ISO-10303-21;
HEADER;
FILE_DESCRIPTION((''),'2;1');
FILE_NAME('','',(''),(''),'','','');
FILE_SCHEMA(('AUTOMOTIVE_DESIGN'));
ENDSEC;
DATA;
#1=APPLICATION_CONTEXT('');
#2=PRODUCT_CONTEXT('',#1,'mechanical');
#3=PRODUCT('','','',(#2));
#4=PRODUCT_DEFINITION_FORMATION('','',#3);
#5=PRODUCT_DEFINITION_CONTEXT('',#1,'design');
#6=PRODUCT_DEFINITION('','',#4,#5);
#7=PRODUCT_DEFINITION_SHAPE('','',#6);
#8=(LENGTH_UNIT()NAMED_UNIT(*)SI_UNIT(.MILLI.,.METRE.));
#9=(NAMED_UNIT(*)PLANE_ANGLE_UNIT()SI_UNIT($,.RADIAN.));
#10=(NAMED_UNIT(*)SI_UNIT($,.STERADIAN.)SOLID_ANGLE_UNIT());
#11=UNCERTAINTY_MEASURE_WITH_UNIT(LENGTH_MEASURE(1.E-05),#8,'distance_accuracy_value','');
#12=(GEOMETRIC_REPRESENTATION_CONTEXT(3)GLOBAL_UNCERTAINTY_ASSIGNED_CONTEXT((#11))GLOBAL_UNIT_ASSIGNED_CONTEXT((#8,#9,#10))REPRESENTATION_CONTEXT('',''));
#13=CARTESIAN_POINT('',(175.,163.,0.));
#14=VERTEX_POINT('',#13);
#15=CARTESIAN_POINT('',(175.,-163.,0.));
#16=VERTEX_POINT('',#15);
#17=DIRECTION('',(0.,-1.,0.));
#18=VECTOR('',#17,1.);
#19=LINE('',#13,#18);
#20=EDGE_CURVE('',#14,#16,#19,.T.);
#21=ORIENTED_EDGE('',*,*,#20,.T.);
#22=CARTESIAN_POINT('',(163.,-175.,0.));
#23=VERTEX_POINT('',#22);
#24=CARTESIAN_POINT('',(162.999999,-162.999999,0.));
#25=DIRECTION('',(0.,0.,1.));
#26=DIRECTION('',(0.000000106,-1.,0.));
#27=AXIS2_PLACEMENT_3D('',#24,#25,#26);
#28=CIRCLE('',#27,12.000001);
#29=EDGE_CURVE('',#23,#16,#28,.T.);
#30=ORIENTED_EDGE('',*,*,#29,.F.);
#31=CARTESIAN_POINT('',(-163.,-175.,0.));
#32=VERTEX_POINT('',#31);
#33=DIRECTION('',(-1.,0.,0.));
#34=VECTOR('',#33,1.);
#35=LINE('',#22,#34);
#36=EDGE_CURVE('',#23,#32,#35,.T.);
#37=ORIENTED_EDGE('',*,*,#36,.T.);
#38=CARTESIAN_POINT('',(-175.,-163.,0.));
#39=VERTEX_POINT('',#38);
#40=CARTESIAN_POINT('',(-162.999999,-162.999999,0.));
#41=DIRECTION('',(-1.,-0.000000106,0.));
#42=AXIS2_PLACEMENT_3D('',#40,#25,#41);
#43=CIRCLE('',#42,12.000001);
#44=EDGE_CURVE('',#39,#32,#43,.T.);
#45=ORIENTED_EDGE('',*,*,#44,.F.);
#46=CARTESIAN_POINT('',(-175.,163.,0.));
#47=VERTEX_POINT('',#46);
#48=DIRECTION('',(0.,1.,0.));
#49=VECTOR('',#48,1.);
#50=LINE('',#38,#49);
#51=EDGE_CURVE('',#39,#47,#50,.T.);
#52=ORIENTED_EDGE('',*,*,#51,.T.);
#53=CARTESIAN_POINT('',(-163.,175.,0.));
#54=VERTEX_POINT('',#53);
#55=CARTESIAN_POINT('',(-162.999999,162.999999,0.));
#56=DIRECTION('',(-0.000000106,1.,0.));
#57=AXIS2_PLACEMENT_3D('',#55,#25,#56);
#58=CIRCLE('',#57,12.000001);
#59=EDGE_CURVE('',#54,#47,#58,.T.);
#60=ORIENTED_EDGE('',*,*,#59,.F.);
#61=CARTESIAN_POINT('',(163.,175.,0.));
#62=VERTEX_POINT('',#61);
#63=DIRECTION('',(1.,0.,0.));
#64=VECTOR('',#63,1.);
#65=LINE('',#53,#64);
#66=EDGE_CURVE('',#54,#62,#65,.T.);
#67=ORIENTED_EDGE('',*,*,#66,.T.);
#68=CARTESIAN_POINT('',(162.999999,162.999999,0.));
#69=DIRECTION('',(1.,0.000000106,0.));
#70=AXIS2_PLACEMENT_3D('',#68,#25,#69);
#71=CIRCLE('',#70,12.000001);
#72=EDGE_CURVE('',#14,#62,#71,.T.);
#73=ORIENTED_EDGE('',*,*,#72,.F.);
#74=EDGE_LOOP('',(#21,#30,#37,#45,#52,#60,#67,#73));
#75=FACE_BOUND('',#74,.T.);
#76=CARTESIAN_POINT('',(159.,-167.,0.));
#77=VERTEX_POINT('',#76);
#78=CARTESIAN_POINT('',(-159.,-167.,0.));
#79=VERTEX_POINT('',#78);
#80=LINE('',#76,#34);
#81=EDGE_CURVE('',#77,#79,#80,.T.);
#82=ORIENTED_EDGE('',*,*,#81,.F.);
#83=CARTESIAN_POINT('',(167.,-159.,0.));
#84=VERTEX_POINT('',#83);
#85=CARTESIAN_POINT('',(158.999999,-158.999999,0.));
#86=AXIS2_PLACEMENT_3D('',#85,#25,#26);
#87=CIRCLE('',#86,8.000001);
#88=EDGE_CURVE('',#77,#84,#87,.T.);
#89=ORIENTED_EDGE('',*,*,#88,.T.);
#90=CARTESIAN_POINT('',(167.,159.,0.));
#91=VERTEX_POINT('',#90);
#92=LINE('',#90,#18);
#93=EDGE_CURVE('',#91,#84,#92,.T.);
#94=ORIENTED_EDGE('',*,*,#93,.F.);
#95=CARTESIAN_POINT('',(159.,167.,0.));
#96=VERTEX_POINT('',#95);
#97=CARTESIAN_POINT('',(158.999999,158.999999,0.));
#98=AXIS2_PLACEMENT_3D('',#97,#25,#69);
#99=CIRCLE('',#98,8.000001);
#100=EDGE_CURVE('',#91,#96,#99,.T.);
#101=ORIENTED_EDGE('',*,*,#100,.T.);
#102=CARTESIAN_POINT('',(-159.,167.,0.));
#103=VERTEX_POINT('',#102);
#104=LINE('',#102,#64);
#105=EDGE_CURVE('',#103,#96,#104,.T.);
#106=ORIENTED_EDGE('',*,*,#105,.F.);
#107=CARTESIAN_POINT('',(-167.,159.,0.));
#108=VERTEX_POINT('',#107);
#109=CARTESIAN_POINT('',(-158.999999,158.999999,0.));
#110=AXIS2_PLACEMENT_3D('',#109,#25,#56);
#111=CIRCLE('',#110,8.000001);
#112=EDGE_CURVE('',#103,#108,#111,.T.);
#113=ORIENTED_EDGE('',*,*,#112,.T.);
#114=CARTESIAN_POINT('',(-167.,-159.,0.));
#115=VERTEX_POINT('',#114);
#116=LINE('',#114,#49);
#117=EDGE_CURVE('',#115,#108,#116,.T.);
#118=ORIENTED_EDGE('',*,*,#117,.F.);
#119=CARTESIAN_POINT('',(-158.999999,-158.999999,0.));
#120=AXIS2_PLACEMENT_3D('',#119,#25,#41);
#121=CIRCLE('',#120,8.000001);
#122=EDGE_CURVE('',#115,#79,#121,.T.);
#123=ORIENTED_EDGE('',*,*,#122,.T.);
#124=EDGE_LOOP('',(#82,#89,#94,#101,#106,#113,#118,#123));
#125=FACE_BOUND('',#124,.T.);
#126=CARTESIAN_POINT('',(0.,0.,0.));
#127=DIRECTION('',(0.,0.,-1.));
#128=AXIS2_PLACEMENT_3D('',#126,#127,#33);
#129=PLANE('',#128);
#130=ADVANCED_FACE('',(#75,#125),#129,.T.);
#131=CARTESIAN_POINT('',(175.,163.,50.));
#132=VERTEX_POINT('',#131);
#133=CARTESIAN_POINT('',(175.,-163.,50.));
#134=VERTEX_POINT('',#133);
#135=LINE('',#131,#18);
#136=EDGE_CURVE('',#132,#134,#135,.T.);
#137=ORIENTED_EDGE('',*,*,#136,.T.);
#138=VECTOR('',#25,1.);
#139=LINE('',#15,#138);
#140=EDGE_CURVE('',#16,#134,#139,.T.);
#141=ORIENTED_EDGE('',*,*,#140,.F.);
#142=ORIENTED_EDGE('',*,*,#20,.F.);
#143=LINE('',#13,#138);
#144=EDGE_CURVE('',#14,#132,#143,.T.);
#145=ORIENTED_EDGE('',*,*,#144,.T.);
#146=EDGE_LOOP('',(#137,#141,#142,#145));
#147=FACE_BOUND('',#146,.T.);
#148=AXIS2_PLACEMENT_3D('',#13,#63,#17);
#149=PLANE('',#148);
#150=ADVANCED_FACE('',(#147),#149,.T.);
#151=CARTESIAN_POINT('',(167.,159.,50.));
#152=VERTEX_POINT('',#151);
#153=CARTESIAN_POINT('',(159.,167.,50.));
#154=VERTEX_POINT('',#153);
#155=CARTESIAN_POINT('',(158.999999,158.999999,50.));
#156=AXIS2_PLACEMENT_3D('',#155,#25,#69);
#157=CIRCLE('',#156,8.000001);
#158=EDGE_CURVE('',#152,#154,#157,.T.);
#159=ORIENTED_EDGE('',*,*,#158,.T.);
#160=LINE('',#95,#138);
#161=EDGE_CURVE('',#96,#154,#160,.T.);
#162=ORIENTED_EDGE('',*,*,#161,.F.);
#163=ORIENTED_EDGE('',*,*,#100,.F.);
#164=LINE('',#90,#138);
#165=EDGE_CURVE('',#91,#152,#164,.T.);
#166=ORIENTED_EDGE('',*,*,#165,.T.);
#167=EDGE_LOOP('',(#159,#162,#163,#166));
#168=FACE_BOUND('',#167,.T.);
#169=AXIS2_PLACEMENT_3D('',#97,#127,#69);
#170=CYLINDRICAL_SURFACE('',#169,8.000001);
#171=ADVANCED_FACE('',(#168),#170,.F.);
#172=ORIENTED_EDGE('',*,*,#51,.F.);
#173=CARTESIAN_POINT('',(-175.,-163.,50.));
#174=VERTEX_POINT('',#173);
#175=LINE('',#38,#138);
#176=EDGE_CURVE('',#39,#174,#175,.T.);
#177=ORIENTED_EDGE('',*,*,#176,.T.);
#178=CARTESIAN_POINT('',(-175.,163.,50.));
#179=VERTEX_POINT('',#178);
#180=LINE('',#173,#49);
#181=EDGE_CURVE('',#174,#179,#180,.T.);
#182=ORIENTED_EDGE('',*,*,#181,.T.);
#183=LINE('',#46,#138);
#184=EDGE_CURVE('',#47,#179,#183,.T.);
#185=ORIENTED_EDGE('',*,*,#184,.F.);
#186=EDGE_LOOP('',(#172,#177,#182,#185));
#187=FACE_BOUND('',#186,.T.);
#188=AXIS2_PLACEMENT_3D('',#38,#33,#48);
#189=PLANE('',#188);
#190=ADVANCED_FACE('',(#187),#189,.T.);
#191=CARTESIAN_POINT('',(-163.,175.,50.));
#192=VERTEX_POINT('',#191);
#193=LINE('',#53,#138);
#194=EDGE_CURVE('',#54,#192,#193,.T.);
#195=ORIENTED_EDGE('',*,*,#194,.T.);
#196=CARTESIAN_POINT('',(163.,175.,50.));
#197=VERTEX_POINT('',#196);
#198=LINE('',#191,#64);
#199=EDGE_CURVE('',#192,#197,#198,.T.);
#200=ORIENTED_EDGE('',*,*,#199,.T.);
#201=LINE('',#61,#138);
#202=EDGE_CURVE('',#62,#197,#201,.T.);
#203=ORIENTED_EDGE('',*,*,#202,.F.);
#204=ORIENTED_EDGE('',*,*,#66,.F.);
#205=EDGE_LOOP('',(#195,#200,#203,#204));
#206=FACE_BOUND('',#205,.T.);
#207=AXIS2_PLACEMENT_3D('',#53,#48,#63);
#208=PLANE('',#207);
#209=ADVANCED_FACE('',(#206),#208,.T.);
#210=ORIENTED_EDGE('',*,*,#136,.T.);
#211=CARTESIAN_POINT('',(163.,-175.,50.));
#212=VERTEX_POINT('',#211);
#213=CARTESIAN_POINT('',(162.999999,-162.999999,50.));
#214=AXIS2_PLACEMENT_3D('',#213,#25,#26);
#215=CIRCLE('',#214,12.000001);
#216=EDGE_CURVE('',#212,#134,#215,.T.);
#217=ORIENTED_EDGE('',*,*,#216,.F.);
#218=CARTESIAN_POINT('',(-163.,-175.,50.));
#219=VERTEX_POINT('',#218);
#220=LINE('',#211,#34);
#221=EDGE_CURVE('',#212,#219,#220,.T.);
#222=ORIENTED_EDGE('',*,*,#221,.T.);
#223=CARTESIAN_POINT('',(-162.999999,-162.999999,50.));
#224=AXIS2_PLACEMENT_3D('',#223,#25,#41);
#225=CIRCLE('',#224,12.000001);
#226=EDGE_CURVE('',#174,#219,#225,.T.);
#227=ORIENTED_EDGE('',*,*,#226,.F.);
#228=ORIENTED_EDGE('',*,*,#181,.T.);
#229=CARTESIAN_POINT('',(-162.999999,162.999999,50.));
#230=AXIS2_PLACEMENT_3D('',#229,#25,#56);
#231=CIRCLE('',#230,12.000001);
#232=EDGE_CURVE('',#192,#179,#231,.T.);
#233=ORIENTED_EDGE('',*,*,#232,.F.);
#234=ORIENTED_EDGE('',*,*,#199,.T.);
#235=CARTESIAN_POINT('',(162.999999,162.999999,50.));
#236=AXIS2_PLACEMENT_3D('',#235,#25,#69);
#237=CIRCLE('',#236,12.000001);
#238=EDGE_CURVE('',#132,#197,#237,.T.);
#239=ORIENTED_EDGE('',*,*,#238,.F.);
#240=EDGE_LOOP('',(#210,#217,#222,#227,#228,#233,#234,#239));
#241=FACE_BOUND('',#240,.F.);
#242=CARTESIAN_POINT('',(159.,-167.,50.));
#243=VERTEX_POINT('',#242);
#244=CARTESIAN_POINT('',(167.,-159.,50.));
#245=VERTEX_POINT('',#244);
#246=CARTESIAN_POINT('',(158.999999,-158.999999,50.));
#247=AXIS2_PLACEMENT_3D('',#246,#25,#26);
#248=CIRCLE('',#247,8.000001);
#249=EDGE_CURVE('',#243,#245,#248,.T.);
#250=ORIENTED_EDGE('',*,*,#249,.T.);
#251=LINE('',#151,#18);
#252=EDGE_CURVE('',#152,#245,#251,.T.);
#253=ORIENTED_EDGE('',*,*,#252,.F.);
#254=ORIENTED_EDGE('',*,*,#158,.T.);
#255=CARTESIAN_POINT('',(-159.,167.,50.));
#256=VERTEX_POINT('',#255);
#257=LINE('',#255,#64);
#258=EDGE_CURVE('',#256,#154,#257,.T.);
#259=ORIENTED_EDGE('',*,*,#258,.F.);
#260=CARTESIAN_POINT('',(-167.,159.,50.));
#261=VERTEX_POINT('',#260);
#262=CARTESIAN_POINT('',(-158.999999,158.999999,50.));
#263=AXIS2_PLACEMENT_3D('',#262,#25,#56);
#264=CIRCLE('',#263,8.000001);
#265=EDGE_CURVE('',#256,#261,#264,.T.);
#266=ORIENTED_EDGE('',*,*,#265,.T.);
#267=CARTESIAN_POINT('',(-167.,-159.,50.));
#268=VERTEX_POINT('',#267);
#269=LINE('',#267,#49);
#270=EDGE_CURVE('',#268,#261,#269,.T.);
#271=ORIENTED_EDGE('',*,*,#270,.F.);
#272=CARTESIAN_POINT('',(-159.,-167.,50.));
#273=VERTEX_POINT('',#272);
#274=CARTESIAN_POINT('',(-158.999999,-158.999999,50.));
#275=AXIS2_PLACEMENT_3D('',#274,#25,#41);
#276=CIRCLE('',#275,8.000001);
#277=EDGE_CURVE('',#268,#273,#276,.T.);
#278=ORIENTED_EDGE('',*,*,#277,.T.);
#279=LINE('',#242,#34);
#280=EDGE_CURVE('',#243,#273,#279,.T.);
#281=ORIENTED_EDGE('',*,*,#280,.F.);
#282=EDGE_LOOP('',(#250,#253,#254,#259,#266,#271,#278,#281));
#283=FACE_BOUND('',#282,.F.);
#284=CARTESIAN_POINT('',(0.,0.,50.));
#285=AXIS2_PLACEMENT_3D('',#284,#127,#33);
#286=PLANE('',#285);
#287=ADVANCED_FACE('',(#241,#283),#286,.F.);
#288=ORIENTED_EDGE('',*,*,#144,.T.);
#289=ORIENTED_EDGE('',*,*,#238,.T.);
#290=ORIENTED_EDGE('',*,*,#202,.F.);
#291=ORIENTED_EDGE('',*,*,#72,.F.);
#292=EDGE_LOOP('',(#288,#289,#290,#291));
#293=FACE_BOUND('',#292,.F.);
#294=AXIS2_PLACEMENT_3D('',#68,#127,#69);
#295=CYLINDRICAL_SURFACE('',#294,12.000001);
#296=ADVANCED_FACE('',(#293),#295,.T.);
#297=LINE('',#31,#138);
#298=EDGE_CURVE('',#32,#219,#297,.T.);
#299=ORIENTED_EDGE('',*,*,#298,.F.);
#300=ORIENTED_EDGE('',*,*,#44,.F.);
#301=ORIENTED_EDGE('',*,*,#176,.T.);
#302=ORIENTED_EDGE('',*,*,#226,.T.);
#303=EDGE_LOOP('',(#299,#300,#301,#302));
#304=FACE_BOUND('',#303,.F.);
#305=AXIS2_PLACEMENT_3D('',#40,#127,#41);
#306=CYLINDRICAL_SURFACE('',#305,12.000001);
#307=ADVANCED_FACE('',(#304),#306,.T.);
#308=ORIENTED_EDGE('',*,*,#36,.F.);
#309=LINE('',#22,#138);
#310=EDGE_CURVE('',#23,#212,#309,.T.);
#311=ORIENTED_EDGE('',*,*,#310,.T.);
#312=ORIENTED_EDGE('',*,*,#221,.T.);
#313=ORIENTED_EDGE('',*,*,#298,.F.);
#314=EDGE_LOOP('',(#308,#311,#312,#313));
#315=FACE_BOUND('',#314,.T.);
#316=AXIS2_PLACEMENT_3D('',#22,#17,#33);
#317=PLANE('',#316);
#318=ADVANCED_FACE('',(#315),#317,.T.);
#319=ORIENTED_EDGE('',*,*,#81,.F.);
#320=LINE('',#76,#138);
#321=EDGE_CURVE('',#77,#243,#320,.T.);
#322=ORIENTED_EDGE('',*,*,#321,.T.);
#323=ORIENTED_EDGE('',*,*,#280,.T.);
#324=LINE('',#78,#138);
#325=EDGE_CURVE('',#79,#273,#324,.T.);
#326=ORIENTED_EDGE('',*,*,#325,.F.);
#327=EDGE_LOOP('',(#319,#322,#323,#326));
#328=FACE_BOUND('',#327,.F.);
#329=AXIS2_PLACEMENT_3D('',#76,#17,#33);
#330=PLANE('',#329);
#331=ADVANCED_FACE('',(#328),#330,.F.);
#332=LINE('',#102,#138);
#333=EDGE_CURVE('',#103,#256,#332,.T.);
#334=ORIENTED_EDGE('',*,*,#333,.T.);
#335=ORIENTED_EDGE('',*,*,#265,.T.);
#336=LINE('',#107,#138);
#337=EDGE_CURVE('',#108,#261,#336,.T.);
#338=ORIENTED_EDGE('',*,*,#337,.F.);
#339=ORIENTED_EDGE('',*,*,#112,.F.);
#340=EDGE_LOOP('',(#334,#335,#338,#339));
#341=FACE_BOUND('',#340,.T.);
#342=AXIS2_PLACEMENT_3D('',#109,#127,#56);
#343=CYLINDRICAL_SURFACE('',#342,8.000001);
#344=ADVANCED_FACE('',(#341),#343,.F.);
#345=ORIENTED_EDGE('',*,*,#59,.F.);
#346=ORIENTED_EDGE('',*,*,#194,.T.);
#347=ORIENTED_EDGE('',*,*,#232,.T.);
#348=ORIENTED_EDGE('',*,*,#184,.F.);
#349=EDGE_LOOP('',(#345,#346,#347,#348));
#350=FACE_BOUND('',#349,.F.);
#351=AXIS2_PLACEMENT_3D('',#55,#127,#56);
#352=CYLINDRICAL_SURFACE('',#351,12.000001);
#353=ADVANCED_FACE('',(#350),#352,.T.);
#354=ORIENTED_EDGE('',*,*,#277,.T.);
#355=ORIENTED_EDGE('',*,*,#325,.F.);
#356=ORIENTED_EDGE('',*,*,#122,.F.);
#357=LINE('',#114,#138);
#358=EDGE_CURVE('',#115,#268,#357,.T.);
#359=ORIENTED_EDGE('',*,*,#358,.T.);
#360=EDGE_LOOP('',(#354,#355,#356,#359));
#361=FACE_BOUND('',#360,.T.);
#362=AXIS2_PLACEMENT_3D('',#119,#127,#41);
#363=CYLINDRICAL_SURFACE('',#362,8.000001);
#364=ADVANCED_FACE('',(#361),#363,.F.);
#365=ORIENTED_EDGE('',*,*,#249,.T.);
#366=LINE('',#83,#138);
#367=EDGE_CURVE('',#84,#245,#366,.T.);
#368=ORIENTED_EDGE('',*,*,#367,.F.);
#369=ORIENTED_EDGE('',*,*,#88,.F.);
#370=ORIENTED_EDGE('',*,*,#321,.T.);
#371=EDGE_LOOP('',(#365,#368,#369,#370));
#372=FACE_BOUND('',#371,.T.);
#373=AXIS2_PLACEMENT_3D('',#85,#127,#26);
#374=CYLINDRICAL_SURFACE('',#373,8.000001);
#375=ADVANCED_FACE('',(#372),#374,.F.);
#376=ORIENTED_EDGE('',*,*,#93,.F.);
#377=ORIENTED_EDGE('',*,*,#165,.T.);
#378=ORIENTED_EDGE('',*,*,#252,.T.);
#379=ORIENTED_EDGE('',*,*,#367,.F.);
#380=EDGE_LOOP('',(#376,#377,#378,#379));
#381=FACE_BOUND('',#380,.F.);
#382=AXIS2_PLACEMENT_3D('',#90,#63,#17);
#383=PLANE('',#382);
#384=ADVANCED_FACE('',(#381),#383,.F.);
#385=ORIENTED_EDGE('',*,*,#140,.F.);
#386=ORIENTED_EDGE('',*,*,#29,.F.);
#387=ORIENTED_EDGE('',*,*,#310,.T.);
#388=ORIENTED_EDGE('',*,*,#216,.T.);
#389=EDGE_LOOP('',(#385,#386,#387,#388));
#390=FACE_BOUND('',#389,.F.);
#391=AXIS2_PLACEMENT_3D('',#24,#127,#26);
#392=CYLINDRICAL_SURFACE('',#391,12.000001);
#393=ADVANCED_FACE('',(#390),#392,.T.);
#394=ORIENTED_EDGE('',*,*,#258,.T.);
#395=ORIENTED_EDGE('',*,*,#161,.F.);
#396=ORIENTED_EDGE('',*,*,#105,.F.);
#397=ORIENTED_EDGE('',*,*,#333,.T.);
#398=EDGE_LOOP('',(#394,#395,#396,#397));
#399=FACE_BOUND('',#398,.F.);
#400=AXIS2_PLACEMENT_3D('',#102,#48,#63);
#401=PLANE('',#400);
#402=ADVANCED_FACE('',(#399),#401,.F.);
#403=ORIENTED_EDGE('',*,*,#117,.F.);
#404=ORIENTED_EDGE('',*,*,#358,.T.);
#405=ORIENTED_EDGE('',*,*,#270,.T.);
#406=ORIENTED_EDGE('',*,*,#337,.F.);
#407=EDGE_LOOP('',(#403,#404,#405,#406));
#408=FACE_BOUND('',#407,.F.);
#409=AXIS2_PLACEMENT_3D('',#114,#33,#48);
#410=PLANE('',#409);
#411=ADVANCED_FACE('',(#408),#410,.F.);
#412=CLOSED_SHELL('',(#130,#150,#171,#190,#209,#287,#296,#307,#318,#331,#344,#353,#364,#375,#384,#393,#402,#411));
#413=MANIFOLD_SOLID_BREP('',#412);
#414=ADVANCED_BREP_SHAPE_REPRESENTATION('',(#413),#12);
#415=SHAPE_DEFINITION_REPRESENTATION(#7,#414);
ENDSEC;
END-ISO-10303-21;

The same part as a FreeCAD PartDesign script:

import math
import FreeCAD as App
import Part
import Sketcher
from FreeCAD import Vector
Q = App.Units.Quantity

doc = App.newDocument("Part")
body = doc.addObject("PartDesign::Body", "Body")

# Sketch on XY plane
sketch1 = body.newObject("Sketcher::SketchObject", "Sketch")
sketch1.AttachmentSupport = (doc.getObject("XY_Plane"), [""])
sketch1.MapMode = "FlatFace"
sketch1.addGeometry(Part.LineSegment(Vector(163, 175, 0), Vector(-163, 175, 0)), False)
sketch1.addGeometry(Part.ArcOfCircle(Part.Circle(Vector(-163, 163, 0), Vector(0, 0, 1), 12), math.radians(90), math.radians(180)), False)
sketch1.addGeometry(Part.LineSegment(Vector(-175, 163, 0), Vector(-175, -163, 0)), False)
sketch1.addGeometry(Part.ArcOfCircle(Part.Circle(Vector(-163, -163, 0), Vector(0, 0, 1), 12), math.radians(-180), math.radians(-90)), False)
sketch1.addGeometry(Part.LineSegment(Vector(-163, -175, 0), Vector(163, -175, 0)), False)
sketch1.addGeometry(Part.ArcOfCircle(Part.Circle(Vector(163, -163, 0), Vector(0, 0, 1), 12), math.radians(-90), math.radians(0)), False)
sketch1.addGeometry(Part.LineSegment(Vector(175, -163, 0), Vector(175, 163, 0)), False)
sketch1.addGeometry(Part.ArcOfCircle(Part.Circle(Vector(163, 163, 0), Vector(0, 0, 1), 12), math.radians(0), math.radians(90)), False)
sketch1.addGeometry(Part.LineSegment(Vector(-159, 167, 0), Vector(159, 167, 0)), False)
sketch1.addGeometry(Part.ArcOfCircle(Part.Circle(Vector(159, 159, 0), Vector(0, 0, 1), 8), math.radians(0), math.radians(90)), False)
sketch1.addGeometry(Part.LineSegment(Vector(167, 159, 0), Vector(167, -159, 0)), False)
sketch1.addGeometry(Part.ArcOfCircle(Part.Circle(Vector(159, -159, 0), Vector(0, 0, 1), 8), math.radians(-90), math.radians(0)), False)
sketch1.addGeometry(Part.LineSegment(Vector(159, -167, 0), Vector(-159, -167, 0)), False)
sketch1.addGeometry(Part.ArcOfCircle(Part.Circle(Vector(-159, -159, 0), Vector(0, 0, 1), 8), math.radians(-180), math.radians(-90)), False)
sketch1.addGeometry(Part.LineSegment(Vector(-167, -159, 0), Vector(-167, 159, 0)), False)
sketch1.addGeometry(Part.ArcOfCircle(Part.Circle(Vector(-159, 159, 0), Vector(0, 0, 1), 8), math.radians(90), math.radians(180)), False)
sketch1.addConstraint(Sketcher.Constraint("Tangent", 0, 2, 1, 1))
sketch1.addConstraint(Sketcher.Constraint("Tangent", 1, 2, 2, 1))
sketch1.addConstraint(Sketcher.Constraint("Tangent", 2, 2, 3, 1))
sketch1.addConstraint(Sketcher.Constraint("Tangent", 3, 2, 4, 1))
sketch1.addConstraint(Sketcher.Constraint("Tangent", 4, 2, 5, 1))
sketch1.addConstraint(Sketcher.Constraint("Tangent", 5, 2, 6, 1))
sketch1.addConstraint(Sketcher.Constraint("Tangent", 6, 2, 7, 1))
sketch1.addConstraint(Sketcher.Constraint("Tangent", 7, 2, 0, 1))
sketch1.addConstraint(Sketcher.Constraint("Tangent", 8, 2, 9, 2))
sketch1.addConstraint(Sketcher.Constraint("Tangent", 9, 1, 10, 1))
sketch1.addConstraint(Sketcher.Constraint("Tangent", 10, 2, 11, 2))
sketch1.addConstraint(Sketcher.Constraint("Tangent", 11, 1, 12, 1))
sketch1.addConstraint(Sketcher.Constraint("Tangent", 12, 2, 13, 2))
sketch1.addConstraint(Sketcher.Constraint("Tangent", 13, 1, 14, 1))
sketch1.addConstraint(Sketcher.Constraint("Tangent", 14, 2, 15, 2))
sketch1.addConstraint(Sketcher.Constraint("Tangent", 15, 1, 8, 1))
sketch1.addConstraint(Sketcher.Constraint("Horizontal", 0))
sketch1.addConstraint(Sketcher.Constraint("Vertical", 2))
sketch1.addConstraint(Sketcher.Constraint("Horizontal", 4))
sketch1.addConstraint(Sketcher.Constraint("Vertical", 6))
sketch1.addConstraint(Sketcher.Constraint("Horizontal", 8))
sketch1.addConstraint(Sketcher.Constraint("Vertical", 10))
sketch1.addConstraint(Sketcher.Constraint("Horizontal", 12))
sketch1.addConstraint(Sketcher.Constraint("Vertical", 14))
sketch1.addConstraint(Sketcher.Constraint("Equal", 1, 3))
sketch1.addConstraint(Sketcher.Constraint("Equal", 3, 5))
sketch1.addConstraint(Sketcher.Constraint("Equal", 5, 7))
sketch1.addConstraint(Sketcher.Constraint("Equal", 9, 11))
sketch1.addConstraint(Sketcher.Constraint("Equal", 11, 13))
sketch1.addConstraint(Sketcher.Constraint("Equal", 13, 15))
sketch1.addConstraint(Sketcher.Constraint("Symmetric", 1, 3, 5, 3, -1, 1))
sketch1.addConstraint(Sketcher.Constraint("Symmetric", 9, 3, 13, 3, -1, 1))
sketch1.addConstraint(Sketcher.Constraint("Equal", 4, 2))
sketch1.addConstraint(Sketcher.Constraint("Equal", 12, 10))
sketch1.addConstraint(Sketcher.Constraint("Radius", 1, Q("12.000001 mm")))
sketch1.addConstraint(Sketcher.Constraint("Radius", 9, Q("8.000001 mm")))
sketch1.addConstraint(Sketcher.Constraint("DistanceX", 0, 2, 0, 1, Q("326 mm")))
sketch1.addConstraint(Sketcher.Constraint("DistanceX", 8, 1, 8, 2, Q("318 mm")))
pad1 = body.newObject("PartDesign::Pad", "Pad")
pad1.Profile = sketch1
pad1.Length = 50

doc.recompute()
